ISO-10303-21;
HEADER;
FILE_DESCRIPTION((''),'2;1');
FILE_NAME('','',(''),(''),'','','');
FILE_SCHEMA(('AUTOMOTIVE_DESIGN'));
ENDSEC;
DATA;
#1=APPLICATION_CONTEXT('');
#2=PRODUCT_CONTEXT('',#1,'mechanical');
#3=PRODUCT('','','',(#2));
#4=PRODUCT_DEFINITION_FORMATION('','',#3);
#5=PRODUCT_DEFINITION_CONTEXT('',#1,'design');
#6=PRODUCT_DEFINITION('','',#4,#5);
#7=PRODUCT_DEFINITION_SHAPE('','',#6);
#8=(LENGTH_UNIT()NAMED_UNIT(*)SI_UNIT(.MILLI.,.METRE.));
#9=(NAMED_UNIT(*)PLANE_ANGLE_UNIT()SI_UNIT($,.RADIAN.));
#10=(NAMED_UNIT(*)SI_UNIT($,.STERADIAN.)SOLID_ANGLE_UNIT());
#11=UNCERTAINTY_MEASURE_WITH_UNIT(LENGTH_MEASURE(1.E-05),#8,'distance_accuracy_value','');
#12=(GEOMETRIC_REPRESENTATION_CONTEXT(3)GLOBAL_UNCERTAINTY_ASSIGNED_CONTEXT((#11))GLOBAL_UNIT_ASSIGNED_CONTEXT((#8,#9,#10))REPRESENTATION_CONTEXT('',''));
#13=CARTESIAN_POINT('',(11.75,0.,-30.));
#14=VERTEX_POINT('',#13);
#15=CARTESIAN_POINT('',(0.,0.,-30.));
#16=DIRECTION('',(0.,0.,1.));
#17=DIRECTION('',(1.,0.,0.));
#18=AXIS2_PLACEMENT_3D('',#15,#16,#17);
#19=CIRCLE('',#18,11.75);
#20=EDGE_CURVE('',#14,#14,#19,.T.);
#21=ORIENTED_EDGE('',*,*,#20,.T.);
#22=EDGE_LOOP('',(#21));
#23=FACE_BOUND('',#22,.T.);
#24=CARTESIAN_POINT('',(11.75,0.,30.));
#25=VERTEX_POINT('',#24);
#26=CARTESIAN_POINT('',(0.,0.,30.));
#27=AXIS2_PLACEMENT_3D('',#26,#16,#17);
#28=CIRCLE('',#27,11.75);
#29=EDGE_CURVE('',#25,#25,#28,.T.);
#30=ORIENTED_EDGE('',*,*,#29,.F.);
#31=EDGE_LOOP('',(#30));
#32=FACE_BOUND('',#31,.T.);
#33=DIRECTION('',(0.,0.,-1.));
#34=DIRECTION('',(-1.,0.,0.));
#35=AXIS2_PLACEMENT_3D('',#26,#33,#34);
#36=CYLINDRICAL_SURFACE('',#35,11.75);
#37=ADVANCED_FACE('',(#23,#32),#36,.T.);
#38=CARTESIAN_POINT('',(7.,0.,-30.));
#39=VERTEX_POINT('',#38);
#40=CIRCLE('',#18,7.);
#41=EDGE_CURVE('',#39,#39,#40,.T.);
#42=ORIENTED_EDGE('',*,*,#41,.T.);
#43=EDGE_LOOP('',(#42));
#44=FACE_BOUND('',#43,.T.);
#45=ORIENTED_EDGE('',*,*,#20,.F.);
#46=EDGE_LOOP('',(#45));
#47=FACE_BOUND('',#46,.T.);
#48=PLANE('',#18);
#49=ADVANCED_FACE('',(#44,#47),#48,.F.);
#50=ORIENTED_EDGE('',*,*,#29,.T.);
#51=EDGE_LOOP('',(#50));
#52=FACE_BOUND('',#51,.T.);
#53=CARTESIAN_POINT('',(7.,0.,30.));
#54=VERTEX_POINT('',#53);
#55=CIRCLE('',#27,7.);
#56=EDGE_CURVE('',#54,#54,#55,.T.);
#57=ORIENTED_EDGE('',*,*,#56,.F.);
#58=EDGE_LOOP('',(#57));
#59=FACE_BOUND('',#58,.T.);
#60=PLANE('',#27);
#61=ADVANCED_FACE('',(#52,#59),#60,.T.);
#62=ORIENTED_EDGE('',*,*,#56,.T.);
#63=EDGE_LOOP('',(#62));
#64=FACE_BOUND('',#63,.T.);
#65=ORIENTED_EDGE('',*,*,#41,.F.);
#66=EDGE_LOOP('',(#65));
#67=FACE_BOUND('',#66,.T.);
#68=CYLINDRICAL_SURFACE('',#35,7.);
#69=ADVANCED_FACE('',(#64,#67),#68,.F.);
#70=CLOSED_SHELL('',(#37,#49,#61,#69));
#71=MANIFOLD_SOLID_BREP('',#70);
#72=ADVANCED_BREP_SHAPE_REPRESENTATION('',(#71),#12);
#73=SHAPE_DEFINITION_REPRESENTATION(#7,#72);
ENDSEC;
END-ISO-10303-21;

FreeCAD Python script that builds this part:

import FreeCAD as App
import Part
import Sketcher
from FreeCAD import Vector
Q = App.Units.Quantity

doc = App.newDocument("Part")
params = doc.addObject("Spreadsheet::Sheet", "Params")
for row, (alias, value) in enumerate([
    ("sketch1_diameter", "14 mm"),
    ("sketch1_diameter2", "23.5 mm"),
    ("pad1_length", "60 mm"),
], start=1):
    params.set(f"A{row}", alias)
    params.set(f"B{row}", "=" + value)
    params.setAlias(f"B{row}", alias)

body = doc.addObject("PartDesign::Body", "Body")

sketch1 = body.newObject("Sketcher::SketchObject", "Sketch")
sketch1.AttachmentSupport = (doc.getObject("XY_Plane"), [""])
sketch1.MapMode = "FlatFace"
sketch1.addGeometry(Part.Circle(Vector(0, 0, 0), Vector(0, 0, 1), 12), False)
sketch1.addGeometry(Part.Circle(Vector(0, 0, 0), Vector(0, 0, 1), 7), False)
sketch1.addConstraint(Sketcher.Constraint("Coincident", 0, 3, -1, 1))
sketch1.addConstraint(Sketcher.Constraint("Coincident", 1, 3, -1, 1))
sketch1.addConstraint(Sketcher.Constraint("Diameter", 1, Q("14 mm")))
sketch1.addConstraint(Sketcher.Constraint("Diameter", 0, Q("23.5 mm")))
sketch1.setExpression("Constraints[2]", "Params.sketch1_diameter")
sketch1.setExpression("Constraints[3]", "Params.sketch1_diameter2")
pad1 = body.newObject("PartDesign::Pad", "Pad")
pad1.Profile = sketch1
pad1.setExpression("Length", "Params.pad1_length")
pad1.Midplane = True

doc.recompute()
